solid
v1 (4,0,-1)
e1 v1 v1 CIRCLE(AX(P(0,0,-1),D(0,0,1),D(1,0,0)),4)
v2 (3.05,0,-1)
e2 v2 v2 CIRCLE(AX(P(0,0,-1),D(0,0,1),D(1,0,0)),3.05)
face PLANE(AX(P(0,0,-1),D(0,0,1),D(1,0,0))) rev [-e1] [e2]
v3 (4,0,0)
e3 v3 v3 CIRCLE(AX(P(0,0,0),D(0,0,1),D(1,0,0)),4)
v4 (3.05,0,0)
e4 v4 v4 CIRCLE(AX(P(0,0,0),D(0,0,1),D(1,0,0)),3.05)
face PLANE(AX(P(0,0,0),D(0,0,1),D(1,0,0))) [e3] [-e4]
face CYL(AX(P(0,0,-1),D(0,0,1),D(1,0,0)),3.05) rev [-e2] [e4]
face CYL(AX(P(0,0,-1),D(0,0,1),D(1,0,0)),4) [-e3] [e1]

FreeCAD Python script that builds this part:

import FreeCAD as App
import Part
import Sketcher

V = App.Vector

doc = App.newDocument("Part")
params = doc.addObject("Spreadsheet::Sheet", "Params")
for row, (alias, value) in enumerate([
    ("sketch1_diameter", "8 mm"),
    ("sketch1_diameter2", "6.1 mm"),
    ("pad1_length", "1 mm"),
], start=1):
    params.set(f"A{row}", alias)
    params.set(f"B{row}", "=" + value)
    params.setAlias(f"B{row}", alias)

body = doc.addObject("PartDesign::Body", "Body")

sketch1 = doc.addObject("Sketcher::SketchObject", "Sketch")
body.addObject(sketch1)
sketch1.AttachmentSupport = (doc.XY_Plane, [""])
sketch1.MapMode = "FlatFace"
sketch1.addGeometry([
    Part.Circle(V(0, 0, 0), V(0, 0, 1), 4),
    Part.Circle(V(0, 0, 0), V(0, 0, 1), 3),
], False)
sketch1.addConstraint([
    Sketcher.Constraint("Coincident", 0, 3, -1, 1),
    Sketcher.Constraint("Coincident", 1, 3, -1, 1),
    Sketcher.Constraint("Diameter", 0, 8.0),
    Sketcher.Constraint("Diameter", 1, 6.1),
])
sketch1.setExpression("Constraints[2]", "Params.sketch1_diameter")
sketch1.setExpression("Constraints[3]", "Params.sketch1_diameter2")
pad1 = doc.addObject("PartDesign::Pad", "Pad")
body.addObject(pad1)
pad1.Profile = sketch1
pad1.setExpression("Length", "Params.pad1_length")
pad1.Reversed = True

doc.recompute()
